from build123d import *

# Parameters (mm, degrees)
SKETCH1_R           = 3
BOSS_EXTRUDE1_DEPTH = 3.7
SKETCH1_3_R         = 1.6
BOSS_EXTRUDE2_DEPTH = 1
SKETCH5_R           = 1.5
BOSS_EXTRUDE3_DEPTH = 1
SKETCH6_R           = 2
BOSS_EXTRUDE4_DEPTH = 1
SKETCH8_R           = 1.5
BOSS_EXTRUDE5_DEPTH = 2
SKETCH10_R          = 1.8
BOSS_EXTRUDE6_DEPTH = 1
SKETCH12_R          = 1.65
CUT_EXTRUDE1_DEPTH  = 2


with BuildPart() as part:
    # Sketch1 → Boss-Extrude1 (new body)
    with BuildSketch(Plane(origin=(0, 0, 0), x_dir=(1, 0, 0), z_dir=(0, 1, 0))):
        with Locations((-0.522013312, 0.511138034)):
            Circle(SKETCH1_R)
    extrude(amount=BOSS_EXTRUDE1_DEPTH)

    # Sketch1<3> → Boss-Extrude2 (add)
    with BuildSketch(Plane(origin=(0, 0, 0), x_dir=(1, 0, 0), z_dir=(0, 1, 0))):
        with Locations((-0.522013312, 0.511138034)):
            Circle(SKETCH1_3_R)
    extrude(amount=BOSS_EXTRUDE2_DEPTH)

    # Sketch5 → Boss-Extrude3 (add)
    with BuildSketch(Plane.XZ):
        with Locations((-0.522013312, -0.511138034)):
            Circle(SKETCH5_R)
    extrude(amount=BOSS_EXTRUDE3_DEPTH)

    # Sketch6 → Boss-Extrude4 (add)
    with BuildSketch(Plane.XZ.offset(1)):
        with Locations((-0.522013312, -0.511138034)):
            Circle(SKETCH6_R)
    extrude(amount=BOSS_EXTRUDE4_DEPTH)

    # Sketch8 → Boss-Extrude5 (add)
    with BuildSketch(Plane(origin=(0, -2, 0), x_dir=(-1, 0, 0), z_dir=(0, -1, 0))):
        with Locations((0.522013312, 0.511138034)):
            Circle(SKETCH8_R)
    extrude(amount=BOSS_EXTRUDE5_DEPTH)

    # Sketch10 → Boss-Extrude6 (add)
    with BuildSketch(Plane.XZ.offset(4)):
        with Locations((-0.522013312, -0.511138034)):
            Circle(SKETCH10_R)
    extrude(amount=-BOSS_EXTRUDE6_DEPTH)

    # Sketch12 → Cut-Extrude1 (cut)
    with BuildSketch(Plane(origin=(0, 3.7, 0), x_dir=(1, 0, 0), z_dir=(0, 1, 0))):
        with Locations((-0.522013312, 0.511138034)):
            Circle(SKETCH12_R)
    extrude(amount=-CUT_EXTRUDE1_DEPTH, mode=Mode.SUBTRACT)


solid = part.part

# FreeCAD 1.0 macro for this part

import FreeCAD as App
import Part
import Sketcher
Q = App.Units.Quantity

doc = App.newDocument("Part")
params = doc.addObject("Spreadsheet::Sheet", "Params")
for row, (alias, value) in enumerate([
    ("sketch1_diameter", "6 mm"),
    ("pad1_length", "3.7 mm"),
    ("sketch2_diameter", "3.2 mm"),
    ("pad2_length", "1 mm"),
    ("sketch3_diameter", "3 mm"),
    ("pad3_length", "1 mm"),
    ("sketch4_diameter", "4 mm"),
    ("pad4_length", "1 mm"),
    ("sketch5_diameter", "3 mm"),
    ("pad5_length", "2 mm"),
    ("sketch6_diameter", "3.6 mm"),
    ("pad6_length", "1 mm"),
    ("sketch7_diameter", "3.3 mm"),
    ("pocket1_length", "2 mm"),
], start=1):
    params.set(f"A{row}", alias)
    params.set(f"B{row}", "=" + value)
    params.setAlias(f"B{row}", alias)

body = doc.addObject("PartDesign::Body", "Body")

sketch1 = doc.addObject("Sketcher::SketchObject", "Sketch")
body.addObject(sketch1)
sketch1.AttachmentSupport = (doc.XZ_Plane, [""])
sketch1.MapMode = "FlatFace"
sketch1.addGeometry(Part.Circle(App.Vector(-0.5, -0.5, 0), App.Vector(0, 0, 1), 3), False)
sketch1.addConstraint([
    Sketcher.Constraint("Diameter", 0, Q("6 mm")),
    Sketcher.Constraint("DistanceY", 0, 3, -1, 1, Q("0.511138 mm")),
    Sketcher.Constraint("DistanceX", 0, 3, -1, 1, Q("0.522013 mm")),
])
sketch1.setExpression("Constraints[0]", "Params.sketch1_diameter")
pad1 = doc.addObject("PartDesign::Pad", "Pad")
body.addObject(pad1)
pad1.Profile = sketch1
pad1.setExpression("Length", "Params.pad1_length")
pad1.Reversed = True

sketch2 = doc.addObject("Sketcher::SketchObject", "Sketch001")
body.addObject(sketch2)
sketch2.AttachmentSupport = (doc.XZ_Plane, [""])
sketch2.MapMode = "FlatFace"
sketch2.addGeometry(Part.Circle(App.Vector(-0.5, -0.5, 0), App.Vector(0, 0, 1), 1.6), False)
sketch2.addConstraint([
    Sketcher.Constraint("Diameter", 0, Q("3.2 mm")),
    Sketcher.Constraint("DistanceY", 0, 3, -1, 1, Q("0.511138 mm")),
    Sketcher.Constraint("DistanceX", 0, 3, -1, 1, Q("0.522013 mm")),
])
sketch2.setExpression("Constraints[0]", "Params.sketch2_diameter")
pad2 = doc.addObject("PartDesign::Pad", "Pad001")
body.addObject(pad2)
pad2.Profile = sketch2
pad2.setExpression("Length", "Params.pad2_length")
pad2.Reversed = True

sketch3 = doc.addObject("Sketcher::SketchObject", "Sketch002")
body.addObject(sketch3)
sketch3.AttachmentSupport = (doc.XZ_Plane, [""])
sketch3.MapMode = "FlatFace"
sketch3.addGeometry(Part.Circle(App.Vector(-0.5, -0.5, 0), App.Vector(0, 0, 1), 1.5), False)
sketch3.addConstraint([
    Sketcher.Constraint("Diameter", 0, Q("3 mm")),
    Sketcher.Constraint("DistanceY", 0, 3, -1, 1, Q("0.511138 mm")),
    Sketcher.Constraint("DistanceX", 0, 3, -1, 1, Q("0.522013 mm")),
])
sketch3.setExpression("Constraints[0]", "Params.sketch3_diameter")
pad3 = doc.addObject("PartDesign::Pad", "Pad002")
body.addObject(pad3)
pad3.Profile = sketch3
pad3.setExpression("Length", "Params.pad3_length")

sketch4 = doc.addObject("Sketcher::SketchObject", "Sketch003")
body.addObject(sketch4)
sketch4.AttachmentSupport = (doc.XZ_Plane, [""])
sketch4.MapMode = "FlatFace"
sketch4.AttachmentOffset = App.Placement(App.Vector(0, 0, 1), App.Rotation())
sketch4.addGeometry(Part.Circle(App.Vector(-0.5, -0.5, 0), App.Vector(0, 0, 1), 2), False)
sketch4.addConstraint([
    Sketcher.Constraint("Diameter", 0, Q("4 mm")),
    Sketcher.Constraint("DistanceY", 0, 3, -1, 1, Q("0.511138 mm")),
    Sketcher.Constraint("DistanceX", 0, 3, -1, 1, Q("0.522013 mm")),
])
sketch4.setExpression("Constraints[0]", "Params.sketch4_diameter")
pad4 = doc.addObject("PartDesign::Pad", "Pad003")
body.addObject(pad4)
pad4.Profile = sketch4
pad4.setExpression("Length", "Params.pad4_length")

sketch5 = doc.addObject("Sketcher::SketchObject", "Sketch004")
body.addObject(sketch5)
sketch5.AttachmentSupport = (doc.XZ_Plane, [""])
sketch5.MapMode = "FlatFace"
sketch5.AttachmentOffset = App.Placement(App.Vector(0, 0, 2), App.Rotation())
sketch5.addGeometry(Part.Circle(App.Vector(-0.5, -0.5, 0), App.Vector(0, 0, 1), 1.5), False)
sketch5.addConstraint([
    Sketcher.Constraint("Diameter", 0, Q("3 mm")),
    Sketcher.Constraint("DistanceY", 0, 3, -1, 1, Q("0.511138 mm")),
    Sketcher.Constraint("DistanceX", 0, 3, -1, 1, Q("0.522013 mm")),
])
sketch5.setExpression("Constraints[0]", "Params.sketch5_diameter")
pad5 = doc.addObject("PartDesign::Pad", "Pad004")
body.addObject(pad5)
pad5.Profile = sketch5
pad5.setExpression("Length", "Params.pad5_length")

sketch6 = doc.addObject("Sketcher::SketchObject", "Sketch005")
body.addObject(sketch6)
sketch6.AttachmentSupport = (doc.XZ_Plane, [""])
sketch6.MapMode = "FlatFace"
sketch6.AttachmentOffset = App.Placement(App.Vector(0, 0, 4), App.Rotation())
sketch6.addGeometry(Part.Circle(App.Vector(-0.5, -0.5, 0), App.Vector(0, 0, 1), 1.8), False)
sketch6.addConstraint([
    Sketcher.Constraint("Diameter", 0, Q("3.6 mm")),
    Sketcher.Constraint("DistanceY", 0, 3, -1, 1, Q("0.511138 mm")),
    Sketcher.Constraint("DistanceX", 0, 3, -1, 1, Q("0.522013 mm")),
])
sketch6.setExpression("Constraints[0]", "Params.sketch6_diameter")
pad6 = doc.addObject("PartDesign::Pad", "Pad005")
body.addObject(pad6)
pad6.Profile = sketch6
pad6.setExpression("Length", "Params.pad6_length")
pad6.Reversed = True

sketch7 = doc.addObject("Sketcher::SketchObject", "Sketch006")
body.addObject(sketch7)
sketch7.AttachmentSupport = (doc.XZ_Plane, [""])
sketch7.MapMode = "FlatFace"
sketch7.AttachmentOffset = App.Placement(App.Vector(0, 0, -3.7), App.Rotation())
sketch7.addGeometry(Part.Circle(App.Vector(-0.5, -0.5, 0), App.Vector(0, 0, 1), 1.6), False)
sketch7.addConstraint([
    Sketcher.Constraint("Diameter", 0, Q("3.3 mm")),
    Sketcher.Constraint("DistanceY", 0, 3, -1, 1, Q("0.511138 mm")),
    Sketcher.Constraint("DistanceX", 0, 3, -1, 1, Q("0.522013 mm")),
])
sketch7.setExpression("Constraints[0]", "Params.sketch7_diameter")
pocket1 = doc.addObject("PartDesign::Pocket", "Pocket")
body.addObject(pocket1)
pocket1.Profile = sketch7
pocket1.setExpression("Length", "Params.pocket1_length")
pocket1.Reversed = True

doc.recompute()
